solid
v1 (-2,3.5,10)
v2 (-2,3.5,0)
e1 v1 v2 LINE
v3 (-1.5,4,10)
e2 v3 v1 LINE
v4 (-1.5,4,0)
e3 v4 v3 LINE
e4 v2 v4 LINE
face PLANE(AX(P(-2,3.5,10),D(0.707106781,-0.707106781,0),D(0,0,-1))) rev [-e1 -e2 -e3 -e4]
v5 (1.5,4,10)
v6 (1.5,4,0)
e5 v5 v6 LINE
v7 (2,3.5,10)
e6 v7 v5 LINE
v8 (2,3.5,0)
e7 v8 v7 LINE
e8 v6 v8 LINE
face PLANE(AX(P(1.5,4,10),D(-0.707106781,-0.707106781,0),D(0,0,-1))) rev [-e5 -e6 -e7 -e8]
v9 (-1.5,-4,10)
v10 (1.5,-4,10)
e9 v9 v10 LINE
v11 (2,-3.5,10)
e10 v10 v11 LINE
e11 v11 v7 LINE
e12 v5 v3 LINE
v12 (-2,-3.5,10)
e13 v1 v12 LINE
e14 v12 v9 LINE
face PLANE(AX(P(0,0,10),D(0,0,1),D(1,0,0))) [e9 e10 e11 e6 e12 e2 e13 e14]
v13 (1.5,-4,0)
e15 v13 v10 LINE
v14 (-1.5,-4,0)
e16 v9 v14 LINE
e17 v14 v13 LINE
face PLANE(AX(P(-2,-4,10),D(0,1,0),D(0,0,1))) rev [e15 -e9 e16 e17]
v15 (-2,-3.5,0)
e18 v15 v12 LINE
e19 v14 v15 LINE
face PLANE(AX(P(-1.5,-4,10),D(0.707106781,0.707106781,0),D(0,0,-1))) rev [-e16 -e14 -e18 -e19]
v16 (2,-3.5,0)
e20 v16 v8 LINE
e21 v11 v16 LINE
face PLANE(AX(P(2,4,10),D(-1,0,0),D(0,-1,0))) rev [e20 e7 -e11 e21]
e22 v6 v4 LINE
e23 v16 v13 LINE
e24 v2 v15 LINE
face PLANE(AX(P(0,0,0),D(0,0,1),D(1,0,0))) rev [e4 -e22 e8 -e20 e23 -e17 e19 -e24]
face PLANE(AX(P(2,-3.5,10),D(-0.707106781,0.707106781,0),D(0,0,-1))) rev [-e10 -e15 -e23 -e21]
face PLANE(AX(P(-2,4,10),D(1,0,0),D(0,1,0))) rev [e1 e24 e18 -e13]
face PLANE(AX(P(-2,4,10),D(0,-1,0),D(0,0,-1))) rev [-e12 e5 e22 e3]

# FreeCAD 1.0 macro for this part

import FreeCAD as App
import Part
import Sketcher
from FreeCAD import Vector


def edges_at(feature, points):
    """Names of the edges that pass closest to the given points."""
    edges = feature.Shape.Edges
    near = lambda p: min(range(len(edges)), key=lambda i: edges[i].distToShape(Part.Vertex(*p))[0])
    return sorted({f"Edge{near(p) + 1}" for p in points})

doc = App.newDocument("Part")
body = doc.addObject("PartDesign::Body", "Body")

# Sketch on XY plane
sketch1 = doc.addObject("Sketcher::SketchObject", "Sketch")
body.addObject(sketch1)
sketch1.AttachmentSupport = (doc.XY_Plane, [""])
sketch1.MapMode = "FlatFace"
sketch1.addGeometry([
    Part.LineSegment(Vector(-2, 4, 0), Vector(-2, -4, 0)),
    Part.LineSegment(Vector(-2, -4, 0), Vector(2, -4, 0)),
    Part.LineSegment(Vector(2, -4, 0), Vector(2, 4, 0)),
    Part.LineSegment(Vector(2, 4, 0), Vector(-2, 4, 0)),
], False)
sketch1.addConstraint([
    Sketcher.Constraint("Coincident", 0, 2, 1, 1),
    Sketcher.Constraint("Coincident", 1, 2, 2, 1),
    Sketcher.Constraint("Coincident", 2, 2, 3, 1),
    Sketcher.Constraint("Coincident", 3, 2, 0, 1),
    Sketcher.Constraint("Vertical", 0),
    Sketcher.Constraint("Horizontal", 1),
    Sketcher.Constraint("Vertical", 2),
    Sketcher.Constraint("Horizontal", 3),
    Sketcher.Constraint("Symmetric", 0, 2, 2, 2, -1, 1),
    Sketcher.Constraint("DistanceX", 1, 1, 1, 2, 4.0),
    Sketcher.Constraint("DistanceY", 0, 2, 0, 1, 8.0),
])
pad1 = doc.addObject("PartDesign::Pad", "Pad")
body.addObject(pad1)
pad1.Profile = sketch1
pad1.Length = 10
doc.recompute()

chamfer = doc.addObject("PartDesign::Chamfer", "Chamfer")
body.addObject(chamfer)
chamfer.Base = (pad1, edges_at(pad1, [
    (2, -4, 5),
    (-2, -4, 5),
    (-2, 4, 5),
    (2, 4, 5),
]))
chamfer.Size = 0.5

doc.recompute()
